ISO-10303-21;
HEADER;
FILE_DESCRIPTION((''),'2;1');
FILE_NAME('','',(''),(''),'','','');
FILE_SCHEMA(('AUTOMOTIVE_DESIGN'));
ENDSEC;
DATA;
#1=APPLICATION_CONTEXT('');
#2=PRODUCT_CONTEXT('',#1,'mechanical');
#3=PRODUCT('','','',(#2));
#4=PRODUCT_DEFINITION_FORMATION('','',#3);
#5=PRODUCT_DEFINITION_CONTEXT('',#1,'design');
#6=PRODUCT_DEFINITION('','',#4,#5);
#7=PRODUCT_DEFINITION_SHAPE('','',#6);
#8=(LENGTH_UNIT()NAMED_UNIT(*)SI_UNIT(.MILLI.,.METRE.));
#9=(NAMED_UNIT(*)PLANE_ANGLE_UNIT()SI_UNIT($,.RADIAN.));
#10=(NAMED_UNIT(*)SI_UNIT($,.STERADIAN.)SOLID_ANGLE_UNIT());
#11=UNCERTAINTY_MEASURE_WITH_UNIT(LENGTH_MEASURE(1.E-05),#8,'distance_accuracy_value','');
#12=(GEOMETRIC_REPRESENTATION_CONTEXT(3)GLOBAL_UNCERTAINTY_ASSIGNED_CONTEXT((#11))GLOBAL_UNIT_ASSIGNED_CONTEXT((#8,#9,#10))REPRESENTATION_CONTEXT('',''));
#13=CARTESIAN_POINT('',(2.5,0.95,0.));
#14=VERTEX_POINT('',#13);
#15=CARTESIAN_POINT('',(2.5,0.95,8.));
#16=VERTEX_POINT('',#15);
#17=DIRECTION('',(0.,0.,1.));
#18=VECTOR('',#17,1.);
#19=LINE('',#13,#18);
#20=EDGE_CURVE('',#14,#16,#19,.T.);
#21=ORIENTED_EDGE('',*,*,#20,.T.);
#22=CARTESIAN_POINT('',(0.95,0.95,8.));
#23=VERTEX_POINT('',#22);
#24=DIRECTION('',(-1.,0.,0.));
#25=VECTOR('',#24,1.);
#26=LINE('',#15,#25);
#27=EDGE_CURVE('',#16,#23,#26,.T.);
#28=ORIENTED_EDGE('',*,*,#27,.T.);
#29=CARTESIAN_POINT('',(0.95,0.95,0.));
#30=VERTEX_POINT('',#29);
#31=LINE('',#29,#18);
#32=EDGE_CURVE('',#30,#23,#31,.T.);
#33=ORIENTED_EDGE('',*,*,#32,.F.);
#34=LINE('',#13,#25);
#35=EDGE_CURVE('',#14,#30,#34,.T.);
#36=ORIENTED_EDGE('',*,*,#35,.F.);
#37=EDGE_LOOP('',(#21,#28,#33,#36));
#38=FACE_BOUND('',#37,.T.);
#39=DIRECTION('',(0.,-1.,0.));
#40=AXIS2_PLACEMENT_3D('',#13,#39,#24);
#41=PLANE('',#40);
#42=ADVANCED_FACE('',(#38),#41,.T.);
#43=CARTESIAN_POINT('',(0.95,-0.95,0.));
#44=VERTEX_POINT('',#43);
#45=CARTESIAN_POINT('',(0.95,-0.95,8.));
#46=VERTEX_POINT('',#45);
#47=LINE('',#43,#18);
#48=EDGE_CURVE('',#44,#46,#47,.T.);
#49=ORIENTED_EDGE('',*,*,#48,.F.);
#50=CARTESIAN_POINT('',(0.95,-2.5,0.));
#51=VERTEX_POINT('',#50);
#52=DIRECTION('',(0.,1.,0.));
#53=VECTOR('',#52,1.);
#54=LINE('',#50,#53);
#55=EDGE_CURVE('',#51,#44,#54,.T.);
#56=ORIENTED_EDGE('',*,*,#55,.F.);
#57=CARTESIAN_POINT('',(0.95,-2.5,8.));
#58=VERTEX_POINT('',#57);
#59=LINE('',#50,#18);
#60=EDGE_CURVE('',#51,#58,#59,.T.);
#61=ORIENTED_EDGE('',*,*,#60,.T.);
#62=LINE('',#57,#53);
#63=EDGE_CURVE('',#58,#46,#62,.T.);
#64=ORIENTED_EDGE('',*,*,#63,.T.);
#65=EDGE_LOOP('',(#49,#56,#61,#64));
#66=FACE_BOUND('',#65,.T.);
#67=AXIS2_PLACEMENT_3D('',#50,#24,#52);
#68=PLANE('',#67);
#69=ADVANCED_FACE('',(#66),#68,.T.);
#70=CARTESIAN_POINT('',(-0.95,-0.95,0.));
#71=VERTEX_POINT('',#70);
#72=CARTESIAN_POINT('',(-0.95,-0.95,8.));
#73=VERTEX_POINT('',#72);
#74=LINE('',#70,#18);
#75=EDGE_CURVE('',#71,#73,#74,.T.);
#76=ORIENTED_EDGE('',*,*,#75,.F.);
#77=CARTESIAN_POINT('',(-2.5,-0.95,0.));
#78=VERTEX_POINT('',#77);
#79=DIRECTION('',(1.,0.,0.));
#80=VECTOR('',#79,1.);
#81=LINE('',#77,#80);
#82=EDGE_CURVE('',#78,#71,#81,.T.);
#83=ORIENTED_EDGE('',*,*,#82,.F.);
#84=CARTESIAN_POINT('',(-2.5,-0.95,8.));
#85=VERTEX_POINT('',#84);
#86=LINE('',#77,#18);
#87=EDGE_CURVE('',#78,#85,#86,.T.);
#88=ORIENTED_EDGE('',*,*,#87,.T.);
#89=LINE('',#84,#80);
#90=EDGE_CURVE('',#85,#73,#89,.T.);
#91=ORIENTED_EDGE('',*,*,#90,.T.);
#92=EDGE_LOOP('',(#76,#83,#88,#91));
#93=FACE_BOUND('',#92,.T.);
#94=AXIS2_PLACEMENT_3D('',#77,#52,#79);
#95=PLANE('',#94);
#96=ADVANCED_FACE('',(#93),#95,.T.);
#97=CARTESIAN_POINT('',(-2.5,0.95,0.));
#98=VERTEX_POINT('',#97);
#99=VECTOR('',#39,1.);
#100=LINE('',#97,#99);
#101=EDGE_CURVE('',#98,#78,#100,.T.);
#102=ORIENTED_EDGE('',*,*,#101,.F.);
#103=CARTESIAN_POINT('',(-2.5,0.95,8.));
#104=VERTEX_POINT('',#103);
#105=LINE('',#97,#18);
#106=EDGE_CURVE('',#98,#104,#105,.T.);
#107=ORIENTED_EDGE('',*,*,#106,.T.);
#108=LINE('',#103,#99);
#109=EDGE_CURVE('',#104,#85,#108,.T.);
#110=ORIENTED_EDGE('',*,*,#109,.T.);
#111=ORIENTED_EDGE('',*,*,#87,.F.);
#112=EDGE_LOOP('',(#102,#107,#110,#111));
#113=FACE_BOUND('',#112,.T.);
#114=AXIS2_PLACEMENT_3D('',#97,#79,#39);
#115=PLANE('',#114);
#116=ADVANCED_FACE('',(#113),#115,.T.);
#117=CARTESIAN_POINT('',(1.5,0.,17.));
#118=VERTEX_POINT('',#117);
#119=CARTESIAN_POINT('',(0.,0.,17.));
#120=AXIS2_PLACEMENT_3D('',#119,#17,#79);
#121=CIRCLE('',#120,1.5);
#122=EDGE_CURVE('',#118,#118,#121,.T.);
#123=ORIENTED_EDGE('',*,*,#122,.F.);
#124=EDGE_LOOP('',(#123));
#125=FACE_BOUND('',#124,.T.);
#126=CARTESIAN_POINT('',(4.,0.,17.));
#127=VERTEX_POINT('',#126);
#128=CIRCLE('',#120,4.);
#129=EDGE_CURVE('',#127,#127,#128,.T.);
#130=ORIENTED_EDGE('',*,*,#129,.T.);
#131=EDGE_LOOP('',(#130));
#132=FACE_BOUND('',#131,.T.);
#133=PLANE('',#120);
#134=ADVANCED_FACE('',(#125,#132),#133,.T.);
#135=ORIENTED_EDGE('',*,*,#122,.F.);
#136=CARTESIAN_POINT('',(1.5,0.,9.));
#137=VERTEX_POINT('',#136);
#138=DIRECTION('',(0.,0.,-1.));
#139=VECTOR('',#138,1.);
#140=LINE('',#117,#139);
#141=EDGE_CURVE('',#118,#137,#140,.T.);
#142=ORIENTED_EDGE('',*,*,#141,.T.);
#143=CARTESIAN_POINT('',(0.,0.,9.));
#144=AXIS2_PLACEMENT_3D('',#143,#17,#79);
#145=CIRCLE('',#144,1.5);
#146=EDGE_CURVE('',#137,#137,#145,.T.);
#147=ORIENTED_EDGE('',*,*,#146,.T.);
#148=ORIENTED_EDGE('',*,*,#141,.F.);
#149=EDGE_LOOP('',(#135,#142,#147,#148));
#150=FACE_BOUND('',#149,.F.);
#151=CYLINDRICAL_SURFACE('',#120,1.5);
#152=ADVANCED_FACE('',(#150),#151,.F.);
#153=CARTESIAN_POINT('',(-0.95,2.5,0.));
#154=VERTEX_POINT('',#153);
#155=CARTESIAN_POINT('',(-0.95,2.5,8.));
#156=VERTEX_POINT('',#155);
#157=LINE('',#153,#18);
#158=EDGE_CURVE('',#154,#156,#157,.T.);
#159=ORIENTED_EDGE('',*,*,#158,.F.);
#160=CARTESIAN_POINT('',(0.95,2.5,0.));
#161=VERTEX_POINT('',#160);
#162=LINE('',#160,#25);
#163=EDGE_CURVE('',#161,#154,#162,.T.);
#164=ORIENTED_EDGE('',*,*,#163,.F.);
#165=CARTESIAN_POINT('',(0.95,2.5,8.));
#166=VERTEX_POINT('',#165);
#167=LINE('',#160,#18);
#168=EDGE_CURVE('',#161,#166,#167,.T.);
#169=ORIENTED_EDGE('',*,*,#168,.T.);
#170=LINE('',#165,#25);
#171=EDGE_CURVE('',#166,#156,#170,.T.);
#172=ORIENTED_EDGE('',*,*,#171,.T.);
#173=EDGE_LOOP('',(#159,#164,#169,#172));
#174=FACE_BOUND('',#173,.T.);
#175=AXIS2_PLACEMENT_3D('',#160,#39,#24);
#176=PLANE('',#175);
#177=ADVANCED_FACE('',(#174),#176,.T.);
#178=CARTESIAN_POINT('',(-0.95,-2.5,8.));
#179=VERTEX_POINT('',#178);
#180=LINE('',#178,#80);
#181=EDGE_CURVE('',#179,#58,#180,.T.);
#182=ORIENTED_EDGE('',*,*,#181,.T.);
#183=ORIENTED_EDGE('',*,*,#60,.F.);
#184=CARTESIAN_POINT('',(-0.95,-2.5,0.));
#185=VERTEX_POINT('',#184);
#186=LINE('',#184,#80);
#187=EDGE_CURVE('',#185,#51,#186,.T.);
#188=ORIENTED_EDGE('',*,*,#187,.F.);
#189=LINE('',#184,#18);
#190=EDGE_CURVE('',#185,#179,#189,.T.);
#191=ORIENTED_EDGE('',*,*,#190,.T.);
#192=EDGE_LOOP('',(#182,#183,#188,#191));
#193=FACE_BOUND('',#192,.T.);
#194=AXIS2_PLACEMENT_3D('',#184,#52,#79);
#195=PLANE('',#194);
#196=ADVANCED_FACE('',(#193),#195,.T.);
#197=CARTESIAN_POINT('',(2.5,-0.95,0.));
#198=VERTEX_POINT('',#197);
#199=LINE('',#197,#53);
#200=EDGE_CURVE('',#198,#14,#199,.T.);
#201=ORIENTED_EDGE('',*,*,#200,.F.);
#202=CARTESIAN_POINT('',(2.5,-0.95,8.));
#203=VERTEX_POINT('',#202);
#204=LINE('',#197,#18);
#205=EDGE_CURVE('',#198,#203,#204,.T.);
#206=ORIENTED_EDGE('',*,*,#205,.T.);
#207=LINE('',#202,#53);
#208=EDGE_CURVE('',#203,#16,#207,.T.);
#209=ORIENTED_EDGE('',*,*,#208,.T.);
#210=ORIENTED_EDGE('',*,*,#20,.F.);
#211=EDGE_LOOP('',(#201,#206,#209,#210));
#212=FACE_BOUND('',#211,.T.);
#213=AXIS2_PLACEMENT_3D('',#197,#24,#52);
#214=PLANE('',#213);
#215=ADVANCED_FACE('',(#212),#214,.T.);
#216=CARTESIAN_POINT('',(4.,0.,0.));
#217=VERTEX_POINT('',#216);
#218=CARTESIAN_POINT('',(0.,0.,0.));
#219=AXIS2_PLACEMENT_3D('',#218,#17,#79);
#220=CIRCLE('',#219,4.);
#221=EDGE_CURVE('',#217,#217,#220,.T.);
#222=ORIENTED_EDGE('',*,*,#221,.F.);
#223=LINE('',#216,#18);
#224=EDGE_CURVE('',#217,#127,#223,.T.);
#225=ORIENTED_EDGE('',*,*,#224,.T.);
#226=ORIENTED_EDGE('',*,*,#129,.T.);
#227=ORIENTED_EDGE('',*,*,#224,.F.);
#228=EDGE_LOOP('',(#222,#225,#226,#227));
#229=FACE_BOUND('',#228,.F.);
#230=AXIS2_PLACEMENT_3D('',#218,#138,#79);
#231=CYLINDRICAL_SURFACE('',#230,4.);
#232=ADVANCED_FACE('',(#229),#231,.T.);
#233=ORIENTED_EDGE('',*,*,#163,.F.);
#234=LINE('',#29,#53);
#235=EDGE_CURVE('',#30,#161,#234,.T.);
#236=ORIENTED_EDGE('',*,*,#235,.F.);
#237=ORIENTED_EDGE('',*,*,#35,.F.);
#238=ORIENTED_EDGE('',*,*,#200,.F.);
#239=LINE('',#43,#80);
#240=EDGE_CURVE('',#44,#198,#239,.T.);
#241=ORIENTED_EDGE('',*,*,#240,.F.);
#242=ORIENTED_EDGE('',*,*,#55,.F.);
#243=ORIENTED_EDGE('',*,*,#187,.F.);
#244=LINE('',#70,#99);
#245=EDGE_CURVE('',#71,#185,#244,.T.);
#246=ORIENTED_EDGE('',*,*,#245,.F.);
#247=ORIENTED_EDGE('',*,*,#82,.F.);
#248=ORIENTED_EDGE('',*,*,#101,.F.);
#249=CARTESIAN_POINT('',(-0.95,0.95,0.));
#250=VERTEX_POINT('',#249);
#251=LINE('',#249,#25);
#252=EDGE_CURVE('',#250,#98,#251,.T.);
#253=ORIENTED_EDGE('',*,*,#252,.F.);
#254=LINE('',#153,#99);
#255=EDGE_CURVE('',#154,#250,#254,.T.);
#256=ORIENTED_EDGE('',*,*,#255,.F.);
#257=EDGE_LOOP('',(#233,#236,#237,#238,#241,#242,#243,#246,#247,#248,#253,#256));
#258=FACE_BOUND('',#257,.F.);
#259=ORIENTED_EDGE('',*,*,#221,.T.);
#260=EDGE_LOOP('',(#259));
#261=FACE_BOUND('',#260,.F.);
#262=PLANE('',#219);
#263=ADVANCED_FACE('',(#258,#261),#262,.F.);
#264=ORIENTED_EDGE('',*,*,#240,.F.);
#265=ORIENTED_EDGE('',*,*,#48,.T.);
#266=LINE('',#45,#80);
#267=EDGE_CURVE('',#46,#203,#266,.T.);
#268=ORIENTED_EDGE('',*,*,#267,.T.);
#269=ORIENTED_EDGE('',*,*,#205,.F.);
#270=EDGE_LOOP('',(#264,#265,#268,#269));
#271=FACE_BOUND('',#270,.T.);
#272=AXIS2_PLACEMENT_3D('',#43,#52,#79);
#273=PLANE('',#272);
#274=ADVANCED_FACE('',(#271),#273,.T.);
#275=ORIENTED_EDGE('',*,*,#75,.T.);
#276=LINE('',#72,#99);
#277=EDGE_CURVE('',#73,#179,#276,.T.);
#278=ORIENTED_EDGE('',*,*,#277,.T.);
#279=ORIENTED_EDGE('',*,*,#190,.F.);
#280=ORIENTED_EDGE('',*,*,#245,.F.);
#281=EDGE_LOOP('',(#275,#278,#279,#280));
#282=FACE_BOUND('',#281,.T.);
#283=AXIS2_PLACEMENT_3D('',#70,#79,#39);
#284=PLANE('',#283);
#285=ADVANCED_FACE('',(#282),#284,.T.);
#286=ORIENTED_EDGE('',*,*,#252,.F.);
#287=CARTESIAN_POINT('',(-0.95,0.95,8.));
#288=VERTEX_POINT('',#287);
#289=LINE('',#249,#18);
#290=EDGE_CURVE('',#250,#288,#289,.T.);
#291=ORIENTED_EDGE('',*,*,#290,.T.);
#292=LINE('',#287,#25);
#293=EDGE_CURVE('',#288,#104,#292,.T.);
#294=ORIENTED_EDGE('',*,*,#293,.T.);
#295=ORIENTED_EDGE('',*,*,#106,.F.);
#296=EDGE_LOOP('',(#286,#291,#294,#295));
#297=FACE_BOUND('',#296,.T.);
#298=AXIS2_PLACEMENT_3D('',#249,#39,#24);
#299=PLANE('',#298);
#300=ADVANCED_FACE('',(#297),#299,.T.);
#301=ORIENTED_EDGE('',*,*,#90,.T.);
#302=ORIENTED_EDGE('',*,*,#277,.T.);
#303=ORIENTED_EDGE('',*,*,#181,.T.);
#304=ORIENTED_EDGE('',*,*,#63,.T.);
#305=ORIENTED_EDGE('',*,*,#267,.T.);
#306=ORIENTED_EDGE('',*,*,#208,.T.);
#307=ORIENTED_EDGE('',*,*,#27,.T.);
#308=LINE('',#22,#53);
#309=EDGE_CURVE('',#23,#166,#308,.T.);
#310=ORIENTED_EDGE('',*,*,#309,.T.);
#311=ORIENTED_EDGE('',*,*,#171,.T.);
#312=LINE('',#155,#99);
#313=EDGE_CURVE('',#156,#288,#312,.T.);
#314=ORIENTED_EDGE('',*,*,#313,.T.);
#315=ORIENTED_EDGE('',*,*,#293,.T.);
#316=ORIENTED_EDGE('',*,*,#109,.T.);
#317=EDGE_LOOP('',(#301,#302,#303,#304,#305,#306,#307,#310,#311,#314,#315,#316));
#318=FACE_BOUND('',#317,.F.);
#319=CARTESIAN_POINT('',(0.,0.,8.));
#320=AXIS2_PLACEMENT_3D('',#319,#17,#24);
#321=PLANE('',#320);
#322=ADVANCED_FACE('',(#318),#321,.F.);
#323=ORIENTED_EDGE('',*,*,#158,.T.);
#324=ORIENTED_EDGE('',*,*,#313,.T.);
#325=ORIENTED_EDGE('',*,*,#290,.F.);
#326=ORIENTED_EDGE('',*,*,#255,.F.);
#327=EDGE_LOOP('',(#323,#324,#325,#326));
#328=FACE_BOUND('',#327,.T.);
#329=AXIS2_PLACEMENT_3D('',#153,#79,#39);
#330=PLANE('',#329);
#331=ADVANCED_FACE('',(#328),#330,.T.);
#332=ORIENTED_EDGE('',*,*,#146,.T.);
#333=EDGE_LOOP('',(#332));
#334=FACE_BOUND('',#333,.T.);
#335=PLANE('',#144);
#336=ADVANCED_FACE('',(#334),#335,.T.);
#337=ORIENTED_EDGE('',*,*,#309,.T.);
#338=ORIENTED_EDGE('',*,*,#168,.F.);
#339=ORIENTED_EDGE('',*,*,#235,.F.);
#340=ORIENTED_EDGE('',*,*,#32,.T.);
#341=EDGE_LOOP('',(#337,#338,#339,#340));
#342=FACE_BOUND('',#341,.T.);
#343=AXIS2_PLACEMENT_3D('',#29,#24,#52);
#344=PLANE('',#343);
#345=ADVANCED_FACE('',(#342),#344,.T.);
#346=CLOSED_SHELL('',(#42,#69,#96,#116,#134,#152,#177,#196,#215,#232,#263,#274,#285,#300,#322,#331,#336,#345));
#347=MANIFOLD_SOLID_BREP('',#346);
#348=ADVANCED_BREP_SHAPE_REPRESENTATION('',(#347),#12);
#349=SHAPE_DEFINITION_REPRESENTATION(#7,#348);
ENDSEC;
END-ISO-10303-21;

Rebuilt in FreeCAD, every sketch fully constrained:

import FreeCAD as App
import Part
import Sketcher

V = App.Vector

doc = App.newDocument("Part")
body = doc.addObject("PartDesign::Body", "Body")

# Sketch on XY plane
sketch1 = body.newObject("Sketcher::SketchObject", "Sketch")
sketch1.AttachmentSupport = (doc.getObject("XY_Plane"), [""])
sketch1.MapMode = "FlatFace"
sketch1.addGeometry(Part.Circle(V(0, 0, 0), V(0, 0, 1), 4), False)
sketch1.addConstraint([
    Sketcher.Constraint("Coincident", 0, 3, -1, 1),
    Sketcher.Constraint("Diameter", 0, 8.0),
])
pad1 = body.newObject("PartDesign::Pad", "Pad")
pad1.Profile = sketch1
pad1.Length = 17

# Sketch on XY plane
sketch2 = body.newObject("Sketcher::SketchObject", "Sketch001")
sketch2.AttachmentSupport = (doc.getObject("XY_Plane"), [""])
sketch2.MapMode = "FlatFace"
sketch2.AttachmentOffset = App.Placement(V(0, 0, 17), App.Rotation())
sketch2.addGeometry(Part.Circle(V(0, 0, 0), V(0, 0, 1), 1.5), False)
sketch2.addConstraint([
    Sketcher.Constraint("Coincident", 0, 3, -1, 1),
    Sketcher.Constraint("Diameter", 0, 3.0),
])
pocket1 = body.newObject("PartDesign::Pocket", "Pocket")
pocket1.Profile = sketch2
pocket1.Length = 8

# Sketch on XY plane
sketch3 = body.newObject("Sketcher::SketchObject", "Sketch002")
sketch3.AttachmentSupport = (doc.getObject("XY_Plane"), [""])
sketch3.MapMode = "FlatFace"
sketch3.addGeometry([
    Part.LineSegment(V(0.9, -2.5, 0), V(-0.9, -2.5, 0)),  # 0
    Part.LineSegment(V(-0.9, -2.5, 0), V(-0.9, -0.9, 0)),  # 1
    Part.LineSegment(V(-0.9, -0.9, 0), V(-2.5, -0.9, 0)),  # 2
    Part.LineSegment(V(-2.5, -0.9, 0), V(-2.5, 0.9, 0)),  # 3
    Part.LineSegment(V(-2.5, 0.9, 0), V(-0.9, 0.9, 0)),  # 4
    Part.LineSegment(V(-0.9, 0.9, 0), V(-0.9, 2.5, 0)),  # 5
    Part.LineSegment(V(-0.9, 2.5, 0), V(0.9, 2.5, 0)),  # 6
    Part.LineSegment(V(0.9, 2.5, 0), V(0.9, 0.9, 0)),  # 7
    Part.LineSegment(V(0.9, 0.9, 0), V(2.5, 0.9, 0)),  # 8
    Part.LineSegment(V(2.5, 0.9, 0), V(2.5, -0.9, 0)),  # 9
    Part.LineSegment(V(2.5, -0.9, 0), V(0.9, -0.9, 0)),  # 10
    Part.LineSegment(V(0.9, -0.9, 0), V(0.9, -2.5, 0)),  # 11
], False)
sketch3.addConstraint([
    Sketcher.Constraint("Coincident", 0, 2, 1, 1),
    Sketcher.Constraint("Coincident", 1, 2, 2, 1),
    Sketcher.Constraint("Coincident", 2, 2, 3, 1),
    Sketcher.Constraint("Coincident", 3, 2, 4, 1),
    Sketcher.Constraint("Coincident", 4, 2, 5, 1),
    Sketcher.Constraint("Coincident", 5, 2, 6, 1),
    Sketcher.Constraint("Coincident", 6, 2, 7, 1),
    Sketcher.Constraint("Coincident", 7, 2, 8, 1),
    Sketcher.Constraint("Coincident", 8, 2, 9, 1),
    Sketcher.Constraint("Coincident", 9, 2, 10, 1),
    Sketcher.Constraint("Coincident", 10, 2, 11, 1),
    Sketcher.Constraint("Coincident", 11, 2, 0, 1),
    Sketcher.Constraint("Horizontal", 0),
    Sketcher.Constraint("Vertical", 1),
    Sketcher.Constraint("Horizontal", 2),
    Sketcher.Constraint("Vertical", 3),
    Sketcher.Constraint("Horizontal", 4),
    Sketcher.Constraint("Vertical", 5),
    Sketcher.Constraint("Horizontal", 6),
    Sketcher.Constraint("Vertical", 7),
    Sketcher.Constraint("Horizontal", 8),
    Sketcher.Constraint("Vertical", 9),
    Sketcher.Constraint("Horizontal", 10),
    Sketcher.Constraint("Vertical", 11),
    Sketcher.Constraint("Symmetric", 0, 2, 6, 2, -1, 1),
    Sketcher.Constraint("Symmetric", 2, 2, 8, 2, -1, 1),
    Sketcher.Constraint("Symmetric", 4, 2, 10, 2, -1, 1),
    Sketcher.Constraint("Symmetric", 4, 2, 7, 2, -2),
    Sketcher.Constraint("Equal", 10, 1),
    Sketcher.Constraint("Equal", 6, 3),
    Sketcher.Constraint("DistanceX", 0, 2, 0, 1, 1.9),
    Sketcher.Constraint("DistanceY", 0, 2, 5, 2, 5.0),
])
pocket2 = body.newObject("PartDesign::Pocket", "Pocket001")
pocket2.Profile = sketch3
pocket2.Length = 8
pocket2.Reversed = True

doc.recompute()
